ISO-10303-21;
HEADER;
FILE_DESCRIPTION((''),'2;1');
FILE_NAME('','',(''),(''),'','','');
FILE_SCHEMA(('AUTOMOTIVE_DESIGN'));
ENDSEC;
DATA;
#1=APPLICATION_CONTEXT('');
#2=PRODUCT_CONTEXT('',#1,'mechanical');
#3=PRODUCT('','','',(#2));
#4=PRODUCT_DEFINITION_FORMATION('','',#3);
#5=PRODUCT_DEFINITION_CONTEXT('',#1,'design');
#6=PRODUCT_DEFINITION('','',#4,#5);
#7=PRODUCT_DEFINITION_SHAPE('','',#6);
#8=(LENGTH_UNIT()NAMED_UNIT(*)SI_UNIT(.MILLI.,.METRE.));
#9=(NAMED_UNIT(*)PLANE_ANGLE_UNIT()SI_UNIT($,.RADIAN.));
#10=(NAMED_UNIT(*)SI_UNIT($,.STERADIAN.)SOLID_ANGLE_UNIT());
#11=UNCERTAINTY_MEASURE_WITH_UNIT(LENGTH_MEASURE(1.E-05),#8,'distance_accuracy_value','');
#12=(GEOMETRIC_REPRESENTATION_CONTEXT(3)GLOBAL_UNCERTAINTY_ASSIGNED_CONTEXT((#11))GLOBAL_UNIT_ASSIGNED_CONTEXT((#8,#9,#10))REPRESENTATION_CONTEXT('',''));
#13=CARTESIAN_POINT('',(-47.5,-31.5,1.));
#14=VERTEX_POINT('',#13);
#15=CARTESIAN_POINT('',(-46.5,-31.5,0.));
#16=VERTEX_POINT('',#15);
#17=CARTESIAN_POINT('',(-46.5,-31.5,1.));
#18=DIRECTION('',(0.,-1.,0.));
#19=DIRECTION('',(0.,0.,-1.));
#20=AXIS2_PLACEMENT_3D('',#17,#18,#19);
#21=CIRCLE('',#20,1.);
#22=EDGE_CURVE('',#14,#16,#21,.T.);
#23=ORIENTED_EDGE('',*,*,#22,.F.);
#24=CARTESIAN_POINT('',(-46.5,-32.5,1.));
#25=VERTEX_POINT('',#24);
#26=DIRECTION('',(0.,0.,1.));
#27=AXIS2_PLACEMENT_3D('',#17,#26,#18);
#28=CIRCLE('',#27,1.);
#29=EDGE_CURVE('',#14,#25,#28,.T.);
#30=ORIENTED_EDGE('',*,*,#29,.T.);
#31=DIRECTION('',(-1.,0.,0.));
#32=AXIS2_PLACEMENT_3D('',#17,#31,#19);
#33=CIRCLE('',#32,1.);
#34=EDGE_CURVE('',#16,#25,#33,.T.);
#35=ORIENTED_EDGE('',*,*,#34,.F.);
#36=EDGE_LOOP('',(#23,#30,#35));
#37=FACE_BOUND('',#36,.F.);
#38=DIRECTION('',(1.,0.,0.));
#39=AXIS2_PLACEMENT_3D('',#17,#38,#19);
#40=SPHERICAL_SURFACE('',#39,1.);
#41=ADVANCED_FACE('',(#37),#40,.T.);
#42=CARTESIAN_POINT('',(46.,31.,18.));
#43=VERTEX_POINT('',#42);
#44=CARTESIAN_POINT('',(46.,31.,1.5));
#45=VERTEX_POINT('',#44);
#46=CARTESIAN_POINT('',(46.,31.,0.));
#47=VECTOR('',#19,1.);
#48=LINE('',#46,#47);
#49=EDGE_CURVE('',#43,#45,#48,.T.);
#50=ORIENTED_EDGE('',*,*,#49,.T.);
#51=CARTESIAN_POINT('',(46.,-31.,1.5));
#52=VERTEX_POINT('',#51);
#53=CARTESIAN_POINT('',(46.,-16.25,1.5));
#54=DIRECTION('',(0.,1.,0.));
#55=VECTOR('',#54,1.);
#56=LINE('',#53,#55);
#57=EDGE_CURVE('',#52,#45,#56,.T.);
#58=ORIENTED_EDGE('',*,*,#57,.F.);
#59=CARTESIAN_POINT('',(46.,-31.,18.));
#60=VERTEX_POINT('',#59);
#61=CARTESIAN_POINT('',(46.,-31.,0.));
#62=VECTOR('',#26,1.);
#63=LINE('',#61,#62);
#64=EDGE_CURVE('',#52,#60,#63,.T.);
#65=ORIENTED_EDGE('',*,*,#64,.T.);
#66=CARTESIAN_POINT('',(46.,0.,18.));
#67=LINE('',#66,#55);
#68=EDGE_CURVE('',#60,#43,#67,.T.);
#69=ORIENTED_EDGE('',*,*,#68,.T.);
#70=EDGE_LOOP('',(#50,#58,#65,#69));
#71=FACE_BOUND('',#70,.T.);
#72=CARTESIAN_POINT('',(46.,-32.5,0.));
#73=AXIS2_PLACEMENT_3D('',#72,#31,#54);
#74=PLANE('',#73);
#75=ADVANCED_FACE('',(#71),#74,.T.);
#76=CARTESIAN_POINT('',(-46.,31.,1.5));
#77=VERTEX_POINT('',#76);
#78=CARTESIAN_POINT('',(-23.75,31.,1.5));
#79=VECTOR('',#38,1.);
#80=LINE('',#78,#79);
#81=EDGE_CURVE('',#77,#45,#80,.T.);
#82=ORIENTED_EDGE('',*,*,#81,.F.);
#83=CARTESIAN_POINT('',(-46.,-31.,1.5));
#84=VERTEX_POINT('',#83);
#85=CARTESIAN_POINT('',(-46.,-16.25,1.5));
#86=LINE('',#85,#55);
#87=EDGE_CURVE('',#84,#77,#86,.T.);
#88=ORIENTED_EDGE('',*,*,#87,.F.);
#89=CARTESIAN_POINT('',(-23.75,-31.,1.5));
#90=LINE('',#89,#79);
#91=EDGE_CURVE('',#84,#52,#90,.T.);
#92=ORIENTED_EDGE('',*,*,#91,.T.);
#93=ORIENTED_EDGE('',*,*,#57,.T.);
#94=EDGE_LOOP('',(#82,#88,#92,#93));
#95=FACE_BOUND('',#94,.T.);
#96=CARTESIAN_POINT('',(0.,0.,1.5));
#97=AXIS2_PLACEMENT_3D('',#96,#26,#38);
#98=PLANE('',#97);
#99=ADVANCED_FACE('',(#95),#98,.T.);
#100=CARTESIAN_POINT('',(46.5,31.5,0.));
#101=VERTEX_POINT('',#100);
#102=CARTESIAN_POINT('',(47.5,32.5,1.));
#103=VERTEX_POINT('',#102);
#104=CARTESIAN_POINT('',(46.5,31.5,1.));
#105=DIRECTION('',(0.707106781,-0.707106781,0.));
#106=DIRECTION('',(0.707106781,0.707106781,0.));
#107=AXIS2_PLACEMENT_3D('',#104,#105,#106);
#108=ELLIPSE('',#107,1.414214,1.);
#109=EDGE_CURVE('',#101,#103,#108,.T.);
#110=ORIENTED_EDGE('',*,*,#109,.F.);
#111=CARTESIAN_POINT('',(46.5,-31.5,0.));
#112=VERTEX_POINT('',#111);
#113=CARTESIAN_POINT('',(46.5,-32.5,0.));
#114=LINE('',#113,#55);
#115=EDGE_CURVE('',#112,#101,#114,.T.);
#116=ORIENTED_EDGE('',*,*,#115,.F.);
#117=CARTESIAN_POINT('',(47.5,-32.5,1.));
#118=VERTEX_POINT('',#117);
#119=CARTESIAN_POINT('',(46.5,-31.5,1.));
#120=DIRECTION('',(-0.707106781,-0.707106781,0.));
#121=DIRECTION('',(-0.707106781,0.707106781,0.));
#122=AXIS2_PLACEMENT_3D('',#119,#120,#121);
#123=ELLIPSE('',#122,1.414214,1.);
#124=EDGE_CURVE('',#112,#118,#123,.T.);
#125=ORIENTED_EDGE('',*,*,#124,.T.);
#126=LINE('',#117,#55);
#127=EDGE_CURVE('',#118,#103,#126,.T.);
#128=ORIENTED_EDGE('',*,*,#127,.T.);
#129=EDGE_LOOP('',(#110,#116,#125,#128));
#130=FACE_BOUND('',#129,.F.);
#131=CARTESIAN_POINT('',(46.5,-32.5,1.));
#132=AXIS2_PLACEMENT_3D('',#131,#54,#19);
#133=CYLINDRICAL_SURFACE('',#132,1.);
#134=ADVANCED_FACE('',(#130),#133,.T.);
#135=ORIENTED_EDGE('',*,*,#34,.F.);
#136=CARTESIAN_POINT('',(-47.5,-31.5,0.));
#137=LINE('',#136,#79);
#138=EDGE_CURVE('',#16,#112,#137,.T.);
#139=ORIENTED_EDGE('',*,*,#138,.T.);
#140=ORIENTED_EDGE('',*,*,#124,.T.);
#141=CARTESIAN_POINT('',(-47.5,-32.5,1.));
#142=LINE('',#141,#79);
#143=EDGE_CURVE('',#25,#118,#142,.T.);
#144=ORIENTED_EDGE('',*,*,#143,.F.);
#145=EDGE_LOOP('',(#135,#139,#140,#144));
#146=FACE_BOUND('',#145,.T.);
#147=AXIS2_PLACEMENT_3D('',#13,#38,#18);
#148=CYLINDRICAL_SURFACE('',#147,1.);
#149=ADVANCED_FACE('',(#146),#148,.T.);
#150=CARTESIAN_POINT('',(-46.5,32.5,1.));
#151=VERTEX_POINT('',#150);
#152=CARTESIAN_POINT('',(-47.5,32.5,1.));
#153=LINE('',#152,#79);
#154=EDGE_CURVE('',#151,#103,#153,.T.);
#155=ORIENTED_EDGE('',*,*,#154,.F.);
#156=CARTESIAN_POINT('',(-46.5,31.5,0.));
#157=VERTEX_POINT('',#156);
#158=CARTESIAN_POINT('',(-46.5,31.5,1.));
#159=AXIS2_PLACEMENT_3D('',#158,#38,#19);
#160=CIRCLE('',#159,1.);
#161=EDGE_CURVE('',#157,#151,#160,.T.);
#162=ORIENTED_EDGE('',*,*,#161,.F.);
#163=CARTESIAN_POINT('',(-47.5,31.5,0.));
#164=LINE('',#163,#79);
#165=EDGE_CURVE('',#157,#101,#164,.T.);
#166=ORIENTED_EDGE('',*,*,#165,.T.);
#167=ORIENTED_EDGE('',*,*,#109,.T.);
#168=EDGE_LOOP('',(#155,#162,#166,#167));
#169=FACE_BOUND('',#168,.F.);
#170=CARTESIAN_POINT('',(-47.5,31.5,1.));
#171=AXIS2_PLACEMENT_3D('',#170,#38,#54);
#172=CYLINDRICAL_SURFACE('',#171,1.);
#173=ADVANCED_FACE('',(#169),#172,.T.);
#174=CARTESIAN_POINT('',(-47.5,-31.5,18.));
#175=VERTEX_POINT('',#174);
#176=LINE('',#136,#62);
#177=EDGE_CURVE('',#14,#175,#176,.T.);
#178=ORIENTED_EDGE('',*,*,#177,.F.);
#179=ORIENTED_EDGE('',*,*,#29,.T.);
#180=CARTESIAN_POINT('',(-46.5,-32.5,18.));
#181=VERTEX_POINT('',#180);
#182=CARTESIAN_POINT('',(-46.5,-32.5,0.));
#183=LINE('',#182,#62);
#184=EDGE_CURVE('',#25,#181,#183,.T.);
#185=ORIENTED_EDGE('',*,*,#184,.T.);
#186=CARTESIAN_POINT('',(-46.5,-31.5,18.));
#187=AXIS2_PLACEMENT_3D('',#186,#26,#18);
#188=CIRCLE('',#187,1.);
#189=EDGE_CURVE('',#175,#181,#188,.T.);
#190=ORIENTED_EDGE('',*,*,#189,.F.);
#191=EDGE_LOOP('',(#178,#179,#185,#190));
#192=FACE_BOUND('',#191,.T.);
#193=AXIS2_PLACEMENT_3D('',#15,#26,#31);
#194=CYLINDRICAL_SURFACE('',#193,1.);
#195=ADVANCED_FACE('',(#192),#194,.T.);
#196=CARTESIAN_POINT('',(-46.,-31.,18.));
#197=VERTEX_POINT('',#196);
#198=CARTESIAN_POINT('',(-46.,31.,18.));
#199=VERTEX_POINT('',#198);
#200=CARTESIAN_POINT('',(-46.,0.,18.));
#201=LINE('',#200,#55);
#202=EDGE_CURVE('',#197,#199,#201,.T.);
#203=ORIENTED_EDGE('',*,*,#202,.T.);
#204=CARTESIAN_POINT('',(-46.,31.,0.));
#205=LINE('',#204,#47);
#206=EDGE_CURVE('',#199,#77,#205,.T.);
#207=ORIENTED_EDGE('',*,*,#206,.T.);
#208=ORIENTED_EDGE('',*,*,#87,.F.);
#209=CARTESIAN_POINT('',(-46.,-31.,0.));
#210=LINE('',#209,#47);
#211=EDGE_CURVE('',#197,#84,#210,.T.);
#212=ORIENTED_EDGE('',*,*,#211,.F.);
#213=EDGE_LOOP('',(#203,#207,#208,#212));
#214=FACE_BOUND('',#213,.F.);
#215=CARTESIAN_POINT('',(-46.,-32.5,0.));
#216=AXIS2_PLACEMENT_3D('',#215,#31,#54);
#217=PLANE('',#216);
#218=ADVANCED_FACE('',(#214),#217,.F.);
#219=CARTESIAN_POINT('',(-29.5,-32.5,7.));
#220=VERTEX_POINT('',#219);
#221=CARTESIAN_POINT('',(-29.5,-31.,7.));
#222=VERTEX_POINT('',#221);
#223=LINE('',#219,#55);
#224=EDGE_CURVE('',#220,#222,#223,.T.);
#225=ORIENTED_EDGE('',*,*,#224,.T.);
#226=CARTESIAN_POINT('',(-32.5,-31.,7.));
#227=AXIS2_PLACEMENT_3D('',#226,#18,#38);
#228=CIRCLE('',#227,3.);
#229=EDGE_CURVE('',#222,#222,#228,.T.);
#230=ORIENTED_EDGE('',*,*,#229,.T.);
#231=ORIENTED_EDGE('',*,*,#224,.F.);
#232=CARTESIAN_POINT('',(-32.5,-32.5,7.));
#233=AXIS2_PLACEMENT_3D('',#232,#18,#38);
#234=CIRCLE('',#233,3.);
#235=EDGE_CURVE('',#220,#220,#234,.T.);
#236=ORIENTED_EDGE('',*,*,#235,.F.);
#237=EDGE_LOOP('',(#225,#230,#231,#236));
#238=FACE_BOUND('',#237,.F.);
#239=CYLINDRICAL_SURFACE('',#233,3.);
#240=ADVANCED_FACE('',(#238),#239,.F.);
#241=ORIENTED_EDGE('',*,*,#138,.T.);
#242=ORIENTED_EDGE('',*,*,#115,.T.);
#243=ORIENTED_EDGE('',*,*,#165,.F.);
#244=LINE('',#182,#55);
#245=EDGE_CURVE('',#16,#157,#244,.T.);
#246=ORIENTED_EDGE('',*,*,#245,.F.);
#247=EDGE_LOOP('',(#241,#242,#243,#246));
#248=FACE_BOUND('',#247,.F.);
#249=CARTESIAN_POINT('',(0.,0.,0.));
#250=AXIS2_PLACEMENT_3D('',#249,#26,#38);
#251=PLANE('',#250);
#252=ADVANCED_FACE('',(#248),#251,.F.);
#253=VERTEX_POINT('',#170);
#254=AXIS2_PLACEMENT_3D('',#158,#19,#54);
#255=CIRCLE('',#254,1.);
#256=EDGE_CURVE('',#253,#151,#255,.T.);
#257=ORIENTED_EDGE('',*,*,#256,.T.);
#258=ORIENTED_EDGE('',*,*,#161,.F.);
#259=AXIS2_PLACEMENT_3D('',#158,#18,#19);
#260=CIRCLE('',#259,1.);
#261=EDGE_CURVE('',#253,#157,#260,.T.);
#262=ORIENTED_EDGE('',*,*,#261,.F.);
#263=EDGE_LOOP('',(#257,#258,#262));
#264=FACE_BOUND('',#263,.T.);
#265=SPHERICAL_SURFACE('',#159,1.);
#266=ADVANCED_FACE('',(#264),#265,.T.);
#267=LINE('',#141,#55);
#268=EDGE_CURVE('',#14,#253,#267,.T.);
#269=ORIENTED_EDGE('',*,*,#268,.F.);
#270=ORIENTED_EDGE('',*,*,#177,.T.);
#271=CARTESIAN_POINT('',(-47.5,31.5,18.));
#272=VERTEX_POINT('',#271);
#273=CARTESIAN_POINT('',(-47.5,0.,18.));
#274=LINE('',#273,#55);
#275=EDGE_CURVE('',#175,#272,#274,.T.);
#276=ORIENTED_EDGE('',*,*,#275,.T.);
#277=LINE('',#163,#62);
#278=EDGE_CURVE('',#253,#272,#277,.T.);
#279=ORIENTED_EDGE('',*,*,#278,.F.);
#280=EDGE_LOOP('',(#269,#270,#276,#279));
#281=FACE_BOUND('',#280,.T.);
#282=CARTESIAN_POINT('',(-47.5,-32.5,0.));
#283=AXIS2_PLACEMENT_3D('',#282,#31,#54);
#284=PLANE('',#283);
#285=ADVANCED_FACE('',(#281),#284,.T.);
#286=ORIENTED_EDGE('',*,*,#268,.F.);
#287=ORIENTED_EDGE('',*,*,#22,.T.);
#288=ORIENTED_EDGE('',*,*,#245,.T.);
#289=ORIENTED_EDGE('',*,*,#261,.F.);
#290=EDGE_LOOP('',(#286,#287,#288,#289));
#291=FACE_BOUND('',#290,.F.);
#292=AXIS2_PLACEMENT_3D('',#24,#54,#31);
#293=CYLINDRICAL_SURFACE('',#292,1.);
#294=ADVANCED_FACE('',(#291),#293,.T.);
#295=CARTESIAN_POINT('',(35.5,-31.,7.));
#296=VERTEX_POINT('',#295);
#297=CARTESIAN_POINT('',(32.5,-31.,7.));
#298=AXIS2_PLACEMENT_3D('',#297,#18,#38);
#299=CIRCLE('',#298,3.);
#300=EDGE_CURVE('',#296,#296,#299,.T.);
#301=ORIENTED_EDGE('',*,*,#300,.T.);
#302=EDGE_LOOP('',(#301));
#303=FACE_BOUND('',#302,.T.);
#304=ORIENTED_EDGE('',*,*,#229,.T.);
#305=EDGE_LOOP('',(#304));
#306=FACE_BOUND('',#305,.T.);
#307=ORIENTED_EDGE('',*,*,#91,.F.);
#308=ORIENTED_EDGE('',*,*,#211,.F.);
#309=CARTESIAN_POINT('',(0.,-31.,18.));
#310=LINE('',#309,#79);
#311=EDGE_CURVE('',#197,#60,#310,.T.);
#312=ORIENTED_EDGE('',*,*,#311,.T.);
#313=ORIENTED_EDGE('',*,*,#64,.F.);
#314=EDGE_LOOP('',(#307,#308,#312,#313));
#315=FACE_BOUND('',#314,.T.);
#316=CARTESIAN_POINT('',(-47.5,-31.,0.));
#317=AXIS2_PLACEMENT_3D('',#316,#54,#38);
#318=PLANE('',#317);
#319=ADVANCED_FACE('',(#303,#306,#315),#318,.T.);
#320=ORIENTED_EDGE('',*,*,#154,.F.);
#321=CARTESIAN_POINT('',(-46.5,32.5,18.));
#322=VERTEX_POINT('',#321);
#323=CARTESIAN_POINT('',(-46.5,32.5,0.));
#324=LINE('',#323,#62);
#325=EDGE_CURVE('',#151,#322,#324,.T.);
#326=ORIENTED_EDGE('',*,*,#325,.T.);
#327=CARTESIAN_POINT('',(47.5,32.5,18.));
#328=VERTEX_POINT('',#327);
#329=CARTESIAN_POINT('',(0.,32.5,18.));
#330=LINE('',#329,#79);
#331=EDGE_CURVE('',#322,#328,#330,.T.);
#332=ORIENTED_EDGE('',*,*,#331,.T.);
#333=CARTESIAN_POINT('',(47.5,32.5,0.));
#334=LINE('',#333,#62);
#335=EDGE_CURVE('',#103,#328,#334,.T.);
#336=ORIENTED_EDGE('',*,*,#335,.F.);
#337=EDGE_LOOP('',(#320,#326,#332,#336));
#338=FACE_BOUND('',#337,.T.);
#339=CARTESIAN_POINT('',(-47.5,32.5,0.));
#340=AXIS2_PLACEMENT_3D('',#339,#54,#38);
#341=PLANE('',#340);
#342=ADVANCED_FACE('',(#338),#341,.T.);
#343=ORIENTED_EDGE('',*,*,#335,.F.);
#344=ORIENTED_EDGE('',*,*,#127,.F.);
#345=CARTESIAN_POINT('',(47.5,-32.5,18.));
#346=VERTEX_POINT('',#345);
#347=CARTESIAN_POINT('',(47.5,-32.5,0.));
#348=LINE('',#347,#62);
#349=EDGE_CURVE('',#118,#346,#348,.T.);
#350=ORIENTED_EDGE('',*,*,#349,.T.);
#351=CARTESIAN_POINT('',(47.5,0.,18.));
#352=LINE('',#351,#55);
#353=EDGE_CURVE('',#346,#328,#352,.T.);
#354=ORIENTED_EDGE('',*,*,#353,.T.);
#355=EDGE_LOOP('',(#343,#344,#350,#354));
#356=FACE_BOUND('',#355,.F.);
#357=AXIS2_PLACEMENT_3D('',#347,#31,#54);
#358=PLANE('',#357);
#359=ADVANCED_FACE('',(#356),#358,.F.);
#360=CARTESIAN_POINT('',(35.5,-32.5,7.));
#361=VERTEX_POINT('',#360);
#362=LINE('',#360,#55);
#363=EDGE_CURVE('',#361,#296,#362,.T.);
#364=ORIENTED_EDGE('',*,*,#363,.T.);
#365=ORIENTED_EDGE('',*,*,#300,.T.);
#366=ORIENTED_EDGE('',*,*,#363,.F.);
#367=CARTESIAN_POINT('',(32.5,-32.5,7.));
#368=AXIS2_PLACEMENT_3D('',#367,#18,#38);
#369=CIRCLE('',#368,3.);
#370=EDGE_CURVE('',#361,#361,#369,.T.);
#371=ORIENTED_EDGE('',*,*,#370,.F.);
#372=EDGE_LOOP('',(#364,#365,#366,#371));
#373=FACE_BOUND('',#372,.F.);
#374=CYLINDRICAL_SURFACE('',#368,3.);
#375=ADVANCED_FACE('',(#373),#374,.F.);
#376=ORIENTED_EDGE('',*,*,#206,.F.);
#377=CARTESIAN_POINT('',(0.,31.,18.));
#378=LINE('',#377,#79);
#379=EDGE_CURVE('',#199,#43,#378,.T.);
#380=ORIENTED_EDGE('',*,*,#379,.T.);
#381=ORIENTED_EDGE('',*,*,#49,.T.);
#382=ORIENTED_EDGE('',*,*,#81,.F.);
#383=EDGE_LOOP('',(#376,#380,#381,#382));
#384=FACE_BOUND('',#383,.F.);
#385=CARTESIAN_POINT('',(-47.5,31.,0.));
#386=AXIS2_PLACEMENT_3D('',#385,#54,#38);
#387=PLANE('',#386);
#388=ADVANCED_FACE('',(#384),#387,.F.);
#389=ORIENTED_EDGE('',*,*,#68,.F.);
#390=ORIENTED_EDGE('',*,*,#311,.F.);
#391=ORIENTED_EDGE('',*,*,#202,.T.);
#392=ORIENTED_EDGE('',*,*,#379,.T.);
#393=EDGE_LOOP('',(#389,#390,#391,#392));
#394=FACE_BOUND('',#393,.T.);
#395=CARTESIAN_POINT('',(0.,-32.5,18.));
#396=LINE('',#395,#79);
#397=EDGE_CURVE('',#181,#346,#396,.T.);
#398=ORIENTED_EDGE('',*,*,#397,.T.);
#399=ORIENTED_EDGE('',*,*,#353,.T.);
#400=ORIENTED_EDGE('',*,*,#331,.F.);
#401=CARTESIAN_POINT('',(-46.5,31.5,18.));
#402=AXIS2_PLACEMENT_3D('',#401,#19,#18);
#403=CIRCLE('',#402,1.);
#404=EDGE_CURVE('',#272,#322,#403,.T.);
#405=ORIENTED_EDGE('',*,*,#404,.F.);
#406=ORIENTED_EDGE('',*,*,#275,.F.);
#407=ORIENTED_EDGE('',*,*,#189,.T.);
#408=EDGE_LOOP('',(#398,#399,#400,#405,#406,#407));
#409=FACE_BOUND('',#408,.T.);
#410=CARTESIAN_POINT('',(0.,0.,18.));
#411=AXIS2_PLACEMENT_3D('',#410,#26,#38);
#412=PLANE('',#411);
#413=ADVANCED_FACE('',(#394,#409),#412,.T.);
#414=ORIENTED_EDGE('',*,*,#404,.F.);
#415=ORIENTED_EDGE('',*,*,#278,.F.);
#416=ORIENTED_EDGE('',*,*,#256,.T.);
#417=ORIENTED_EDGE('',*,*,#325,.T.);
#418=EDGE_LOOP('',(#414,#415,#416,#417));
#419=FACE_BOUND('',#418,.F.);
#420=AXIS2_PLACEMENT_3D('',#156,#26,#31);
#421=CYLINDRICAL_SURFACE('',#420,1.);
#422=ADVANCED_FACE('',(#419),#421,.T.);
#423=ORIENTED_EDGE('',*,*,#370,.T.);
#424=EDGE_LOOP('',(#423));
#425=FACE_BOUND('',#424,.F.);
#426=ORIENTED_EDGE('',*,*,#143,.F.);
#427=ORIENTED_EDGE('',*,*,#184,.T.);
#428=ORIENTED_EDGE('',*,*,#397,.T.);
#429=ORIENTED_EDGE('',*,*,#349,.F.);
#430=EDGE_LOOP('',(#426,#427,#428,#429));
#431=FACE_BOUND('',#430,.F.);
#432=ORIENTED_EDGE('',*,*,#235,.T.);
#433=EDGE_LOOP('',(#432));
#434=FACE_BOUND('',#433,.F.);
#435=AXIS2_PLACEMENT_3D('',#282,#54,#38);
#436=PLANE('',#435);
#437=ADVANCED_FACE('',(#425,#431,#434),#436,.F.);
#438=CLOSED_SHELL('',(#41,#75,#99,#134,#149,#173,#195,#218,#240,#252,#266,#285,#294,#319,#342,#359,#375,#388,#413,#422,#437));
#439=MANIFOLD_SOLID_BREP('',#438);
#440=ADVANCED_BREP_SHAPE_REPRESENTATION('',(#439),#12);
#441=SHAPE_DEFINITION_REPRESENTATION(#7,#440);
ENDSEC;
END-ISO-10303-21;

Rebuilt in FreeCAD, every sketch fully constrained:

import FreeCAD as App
import Part
import Sketcher
from FreeCAD import Vector
Q = App.Units.Quantity


def edges_at(feature, points):
    """Names of the edges that pass closest to the given points."""
    edges = feature.Shape.Edges
    near = lambda p: min(range(len(edges)), key=lambda i: edges[i].distToShape(Part.Vertex(*p))[0])
    return sorted({f"Edge{near(p) + 1}" for p in points})


def faces_at(feature, points):
    """Names of the faces that lie closest to the given points."""
    faces = feature.Shape.Faces
    near = lambda p: min(range(len(faces)), key=lambda i: faces[i].distToShape(Part.Vertex(*p))[0])
    return sorted({f"Face{near(p) + 1}" for p in points})


def add_polygon(sketch, points):
    """Adds a closed chain of lines whose ends are joined by coincident constraints."""
    first, n = sketch.GeometryCount, len(points)
    for a, b in zip(points, points[1:] + points[:1]):
        sketch.addGeometry(Part.LineSegment(App.Vector(*a, 0), App.Vector(*b, 0)), False)
    for i in range(n):
        sketch.addConstraint(Sketcher.Constraint("Coincident", first + i, 2, first + (i + 1) % n, 1))

doc = App.newDocument("Part")
body = doc.addObject("PartDesign::Body", "Body")

# Sketch on XY plane
sketch1 = body.newObject("Sketcher::SketchObject", "Sketch")
sketch1.AttachmentSupport = (doc.getObject("XY_Plane"), [""])
sketch1.MapMode = "FlatFace"
add_polygon(sketch1, [(-48, 32), (-48, -32), (48, -32), (48, 32)])  # lines 0-3
sketch1.addConstraint(Sketcher.Constraint("Vertical", 0))
sketch1.addConstraint(Sketcher.Constraint("Horizontal", 1))
sketch1.addConstraint(Sketcher.Constraint("Vertical", 2))
sketch1.addConstraint(Sketcher.Constraint("Horizontal", 3))
sketch1.addConstraint(Sketcher.Constraint("Symmetric", 0, 2, 2, 2, -1, 1))
sketch1.addConstraint(Sketcher.Constraint("DistanceX", 1, 1, 1, 2, Q("95 mm")))
sketch1.addConstraint(Sketcher.Constraint("DistanceY", 0, 2, 0, 1, Q("65 mm")))
pad1 = body.newObject("PartDesign::Pad", "Pad")
pad1.Profile = sketch1
pad1.Length = 18
doc.recompute()

thickness = body.newObject("PartDesign::Thickness", "Thickness")
thickness.Base = (pad1, faces_at(pad1, [(0, 0, 18)]))
thickness.Value = 1.5
thickness.Reversed = True
thickness.Join = "Arc"

# Sketch on XZ plane
sketch2 = body.newObject("Sketcher::SketchObject", "Sketch001")
sketch2.AttachmentSupport = (doc.getObject("XZ_Plane"), [""])
sketch2.MapMode = "FlatFace"
sketch2.AttachmentOffset = App.Placement(Vector(0, 0, 32.5), App.Rotation())
sketch2.addGeometry(Part.Circle(Vector(-32.5, 7, 0), Vector(0, 0, 1), 3), False)
sketch2.addGeometry(Part.Circle(Vector(32.5, 7, 0), Vector(0, 0, 1), 3), False)
sketch2.addConstraint(Sketcher.Constraint("Equal", 0, 1))
sketch2.addConstraint(Sketcher.Constraint("Symmetric", 0, 3, 1, 3, -2))
sketch2.addConstraint(Sketcher.Constraint("Diameter", 0, Q("6 mm")))
sketch2.addConstraint(Sketcher.Constraint("DistanceY", -1, 1, 0, 3, Q("7 mm")))
sketch2.addConstraint(Sketcher.Constraint("DistanceX", 0, 3, 1, 3, Q("65 mm")))
pocket1 = body.newObject("PartDesign::Pocket", "Pocket")
pocket1.Profile = sketch2
pocket1.Length = 10
doc.recompute()

fillet = body.newObject("PartDesign::Fillet", "Fillet")
fillet.Base = (pocket1, edges_at(pocket1, [
    (47.5, 0, 0),
    (0, 32.5, 0),
    (0, -32.5, 0),
    (-47.5, 0, 0),
    (-47.5, -32.5, 9),
    (-47.5, 32.5, 9),
]))
fillet.Radius = 1

doc.recompute()
